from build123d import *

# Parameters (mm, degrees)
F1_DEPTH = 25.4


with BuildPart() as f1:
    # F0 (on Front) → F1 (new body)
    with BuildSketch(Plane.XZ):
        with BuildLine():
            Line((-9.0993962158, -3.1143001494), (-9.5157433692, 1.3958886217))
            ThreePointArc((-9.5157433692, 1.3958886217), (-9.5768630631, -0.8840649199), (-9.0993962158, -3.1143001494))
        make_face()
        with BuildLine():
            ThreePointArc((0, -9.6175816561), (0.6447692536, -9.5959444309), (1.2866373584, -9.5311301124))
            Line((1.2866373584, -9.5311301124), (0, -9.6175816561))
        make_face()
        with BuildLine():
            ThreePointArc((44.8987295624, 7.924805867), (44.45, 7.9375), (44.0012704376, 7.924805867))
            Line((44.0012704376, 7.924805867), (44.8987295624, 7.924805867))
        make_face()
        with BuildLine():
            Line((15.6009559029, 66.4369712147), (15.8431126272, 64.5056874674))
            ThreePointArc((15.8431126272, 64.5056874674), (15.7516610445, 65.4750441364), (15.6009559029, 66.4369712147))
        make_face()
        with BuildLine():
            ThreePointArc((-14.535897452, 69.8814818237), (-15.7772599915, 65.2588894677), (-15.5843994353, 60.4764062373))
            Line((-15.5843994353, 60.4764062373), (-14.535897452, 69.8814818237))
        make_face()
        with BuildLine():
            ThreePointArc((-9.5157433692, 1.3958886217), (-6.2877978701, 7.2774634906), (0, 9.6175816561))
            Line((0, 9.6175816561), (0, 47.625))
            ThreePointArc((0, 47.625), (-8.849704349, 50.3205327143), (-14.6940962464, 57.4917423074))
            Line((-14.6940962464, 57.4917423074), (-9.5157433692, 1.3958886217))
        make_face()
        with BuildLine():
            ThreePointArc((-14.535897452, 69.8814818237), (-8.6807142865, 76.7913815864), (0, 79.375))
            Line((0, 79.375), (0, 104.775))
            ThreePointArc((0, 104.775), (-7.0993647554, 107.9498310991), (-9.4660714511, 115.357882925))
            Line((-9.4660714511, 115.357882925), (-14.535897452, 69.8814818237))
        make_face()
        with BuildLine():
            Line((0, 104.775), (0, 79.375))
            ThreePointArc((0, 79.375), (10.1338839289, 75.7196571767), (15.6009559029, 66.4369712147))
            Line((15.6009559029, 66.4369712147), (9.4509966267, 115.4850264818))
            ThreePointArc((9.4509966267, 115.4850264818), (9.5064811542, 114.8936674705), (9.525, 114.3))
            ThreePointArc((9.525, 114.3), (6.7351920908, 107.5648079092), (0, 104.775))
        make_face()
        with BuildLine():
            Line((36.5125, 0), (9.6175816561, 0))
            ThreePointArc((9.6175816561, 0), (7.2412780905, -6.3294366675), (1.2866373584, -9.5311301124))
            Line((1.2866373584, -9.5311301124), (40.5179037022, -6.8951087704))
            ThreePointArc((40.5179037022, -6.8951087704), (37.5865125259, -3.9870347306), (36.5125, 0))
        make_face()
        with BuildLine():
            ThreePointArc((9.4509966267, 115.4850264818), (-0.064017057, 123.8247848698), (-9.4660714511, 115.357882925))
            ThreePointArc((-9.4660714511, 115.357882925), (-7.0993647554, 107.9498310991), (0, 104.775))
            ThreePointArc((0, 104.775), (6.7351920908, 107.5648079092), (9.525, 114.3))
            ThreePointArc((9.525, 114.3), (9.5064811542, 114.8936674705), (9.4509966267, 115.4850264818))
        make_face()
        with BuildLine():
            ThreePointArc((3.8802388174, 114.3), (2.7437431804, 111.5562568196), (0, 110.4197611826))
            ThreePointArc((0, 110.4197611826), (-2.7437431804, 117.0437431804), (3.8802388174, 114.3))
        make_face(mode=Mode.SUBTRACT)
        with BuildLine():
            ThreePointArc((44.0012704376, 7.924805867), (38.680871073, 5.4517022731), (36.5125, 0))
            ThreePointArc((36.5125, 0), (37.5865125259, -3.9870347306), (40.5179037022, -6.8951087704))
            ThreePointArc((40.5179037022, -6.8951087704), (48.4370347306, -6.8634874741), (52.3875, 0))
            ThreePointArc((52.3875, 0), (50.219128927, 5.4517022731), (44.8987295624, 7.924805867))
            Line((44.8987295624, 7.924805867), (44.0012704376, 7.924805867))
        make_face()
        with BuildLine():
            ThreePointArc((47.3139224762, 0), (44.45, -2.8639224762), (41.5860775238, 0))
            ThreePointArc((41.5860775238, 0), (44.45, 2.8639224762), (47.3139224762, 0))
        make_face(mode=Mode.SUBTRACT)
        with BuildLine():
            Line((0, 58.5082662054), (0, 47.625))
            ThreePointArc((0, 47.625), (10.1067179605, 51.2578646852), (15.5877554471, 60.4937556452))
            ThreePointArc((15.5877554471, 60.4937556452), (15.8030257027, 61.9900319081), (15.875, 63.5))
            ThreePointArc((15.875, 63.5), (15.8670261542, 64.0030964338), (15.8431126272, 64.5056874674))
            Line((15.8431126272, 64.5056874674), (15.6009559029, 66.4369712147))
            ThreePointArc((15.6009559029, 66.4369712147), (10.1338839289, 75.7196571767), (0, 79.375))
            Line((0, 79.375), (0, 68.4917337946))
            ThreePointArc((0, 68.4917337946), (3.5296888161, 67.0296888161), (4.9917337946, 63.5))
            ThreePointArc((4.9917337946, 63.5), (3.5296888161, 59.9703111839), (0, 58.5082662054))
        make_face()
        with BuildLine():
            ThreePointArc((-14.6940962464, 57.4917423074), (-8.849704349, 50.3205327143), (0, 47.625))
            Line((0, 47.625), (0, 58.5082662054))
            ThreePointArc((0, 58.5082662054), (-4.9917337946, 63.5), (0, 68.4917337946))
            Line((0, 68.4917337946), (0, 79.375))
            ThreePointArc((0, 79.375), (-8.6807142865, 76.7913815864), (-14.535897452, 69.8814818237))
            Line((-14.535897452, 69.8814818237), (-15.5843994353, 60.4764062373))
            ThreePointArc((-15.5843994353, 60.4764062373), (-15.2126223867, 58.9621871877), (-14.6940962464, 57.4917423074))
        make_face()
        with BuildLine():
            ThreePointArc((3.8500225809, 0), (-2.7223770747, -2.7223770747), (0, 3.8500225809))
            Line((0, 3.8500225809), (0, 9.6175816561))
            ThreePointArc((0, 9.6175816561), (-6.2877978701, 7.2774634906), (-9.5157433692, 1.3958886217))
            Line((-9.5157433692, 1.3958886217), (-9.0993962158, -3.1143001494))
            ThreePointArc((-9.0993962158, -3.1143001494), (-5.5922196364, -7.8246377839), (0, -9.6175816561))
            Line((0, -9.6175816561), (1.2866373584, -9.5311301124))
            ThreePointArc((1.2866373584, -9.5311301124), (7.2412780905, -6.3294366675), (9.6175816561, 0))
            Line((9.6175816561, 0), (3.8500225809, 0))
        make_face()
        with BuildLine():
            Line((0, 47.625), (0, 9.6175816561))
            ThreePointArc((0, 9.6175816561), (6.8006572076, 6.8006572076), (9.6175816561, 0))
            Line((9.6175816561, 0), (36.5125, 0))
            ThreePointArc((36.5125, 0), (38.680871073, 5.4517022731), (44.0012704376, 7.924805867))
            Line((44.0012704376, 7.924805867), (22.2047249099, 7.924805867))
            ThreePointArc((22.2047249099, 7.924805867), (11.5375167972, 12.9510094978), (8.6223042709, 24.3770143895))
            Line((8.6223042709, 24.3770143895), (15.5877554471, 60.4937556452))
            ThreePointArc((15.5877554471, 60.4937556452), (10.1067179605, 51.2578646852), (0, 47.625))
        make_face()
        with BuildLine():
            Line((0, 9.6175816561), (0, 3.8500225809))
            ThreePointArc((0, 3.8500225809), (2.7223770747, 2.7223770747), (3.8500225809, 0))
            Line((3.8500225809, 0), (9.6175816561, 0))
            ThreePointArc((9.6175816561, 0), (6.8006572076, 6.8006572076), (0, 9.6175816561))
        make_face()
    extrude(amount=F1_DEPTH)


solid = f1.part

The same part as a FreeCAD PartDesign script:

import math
import FreeCAD as App
import Part
import Sketcher
Q = App.Units.Quantity

doc = App.newDocument("Part")
body = doc.addObject("PartDesign::Body", "Body")

# Sketch on XZ plane
sketch1 = body.newObject("Sketcher::SketchObject", "Sketch")
sketch1.AttachmentSupport = (doc.getObject("XZ_Plane"), [""])
sketch1.MapMode = "FlatFace"
sketch1.addGeometry([
    Part.ArcOfCircle(Part.Circle(App.Vector(0, 0, 0), App.Vector(0, 0, 1), 9.617582), math.radians(171.654657), math.radians(198.89369)),  # 0
    Part.ArcOfCircle(Part.Circle(App.Vector(0, 0, 0), App.Vector(0, 0, 1), 9.617582), math.radians(-161.10631), math.radians(-90)),  # 1
    Part.ArcOfCircle(Part.Circle(App.Vector(0, 0, 0), App.Vector(0, 0, 1), 9.617582), math.radians(-90), math.radians(-82.311937)),  # 2
    Part.LineSegment(App.Vector(1.286637, -9.53113, 0), App.Vector(40.517904, -6.895109, 0)),  # 3
    Part.ArcOfCircle(Part.Circle(App.Vector(44.45, 0, 0), App.Vector(0, 0, 1), 7.9375), math.radians(-119.694957), math.radians(0)),  # 4
    Part.ArcOfCircle(Part.Circle(App.Vector(44.45, 0, 0), App.Vector(0, 0, 1), 7.9375), math.radians(0), math.radians(86.759178)),  # 5
    Part.ArcOfCircle(Part.Circle(App.Vector(44.45, 0, 0), App.Vector(0, 0, 1), 7.9375), math.radians(86.759178), math.radians(93.240822)),  # 6
    Part.LineSegment(App.Vector(44.00127, 7.924806, 0), App.Vector(22.204725, 7.924806, 0)),  # 7
    Part.ArcOfCircle(Part.Circle(App.Vector(22.204725, 21.757518, 0), App.Vector(0, 0, 1), 13.832712), math.radians(169.083996), math.radians(270)),  # 8
    Part.LineSegment(App.Vector(8.622304, 24.377014, 0), App.Vector(15.587755, 60.493756, 0)),  # 9
    Part.ArcOfCircle(Part.Circle(App.Vector(0, 63.5, 0), App.Vector(0, 0, 1), 15.875), math.radians(-10.916004), math.radians(0)),  # 10
    Part.ArcOfCircle(Part.Circle(App.Vector(0, 63.5, 0), App.Vector(0, 0, 1), 15.875), math.radians(0), math.radians(3.632142)),  # 11
    Part.ArcOfCircle(Part.Circle(App.Vector(0, 63.5, 0), App.Vector(0, 0, 1), 15.875), math.radians(3.632142), math.radians(10.661486)),  # 12
    Part.LineSegment(App.Vector(15.600956, 66.436971, 0), App.Vector(9.450997, 115.485026, 0)),  # 13
    Part.ArcOfCircle(Part.Circle(App.Vector(0, 114.3, 0), App.Vector(0, 0, 1), 9.525), math.radians(7.146814), math.radians(173.623356)),  # 14
    Part.LineSegment(App.Vector(-9.466071, 115.357883, 0), App.Vector(-14.535897, 69.881482, 0)),  # 15
    Part.ArcOfCircle(Part.Circle(App.Vector(0, 63.5, 0), App.Vector(0, 0, 1), 15.875), math.radians(156.297789), math.radians(190.979782)),  # 16
    Part.ArcOfCircle(Part.Circle(App.Vector(0, 63.5, 0), App.Vector(0, 0, 1), 15.875), math.radians(-169.020218), math.radians(-157.760876)),  # 17
    Part.LineSegment(App.Vector(-14.694096, 57.491742, 0), App.Vector(-9.515743, 1.395889, 0)),  # 18
    Part.ArcOfCircle(Part.Circle(App.Vector(0, 0, 0), App.Vector(0, 0, 1), 3.850023), math.radians(90), math.radians(360)),  # 19
    Part.ArcOfCircle(Part.Circle(App.Vector(0, 0, 0), App.Vector(0, 0, 1), 3.850023), math.radians(0), math.radians(90)),  # 20
    Part.ArcOfCircle(Part.Circle(App.Vector(0, 114.3, 0), App.Vector(0, 0, 1), 3.880239), math.radians(0), math.radians(270)),  # 21
    Part.ArcOfCircle(Part.Circle(App.Vector(0, 114.3, 0), App.Vector(0, 0, 1), 3.880239), math.radians(-90), math.radians(0)),  # 22
    Part.ArcOfCircle(Part.Circle(App.Vector(0, 63.5, 0), App.Vector(0, 0, 1), 4.991734), math.radians(0), math.radians(90)),  # 23
    Part.ArcOfCircle(Part.Circle(App.Vector(0, 63.5, 0), App.Vector(0, 0, 1), 4.991734), math.radians(-90), math.radians(0)),  # 24
    Part.ArcOfCircle(Part.Circle(App.Vector(0, 63.5, 0), App.Vector(0, 0, 1), 4.991734), math.radians(90), math.radians(270)),  # 25
    Part.Circle(App.Vector(44.45, 0, 0), App.Vector(0, 0, 1), 2.863922),  # 26
], False)
sketch1.addConstraint([
    Sketcher.Constraint("Tangent", 0, 2, 1, 1),
    Sketcher.Constraint("Tangent", 1, 2, 2, 1),
    Sketcher.Constraint("Coincident", 2, 2, 3, 1),
    Sketcher.Constraint("Coincident", 3, 2, 4, 1),
    Sketcher.Constraint("Tangent", 4, 2, 5, 1),
    Sketcher.Constraint("Tangent", 5, 2, 6, 1),
    Sketcher.Constraint("Coincident", 6, 2, 7, 1),
    Sketcher.Constraint("Tangent", 7, 2, 8, 2),
    Sketcher.Constraint("Tangent", 8, 1, 9, 1),
    Sketcher.Constraint("Tangent", 9, 2, 10, 1),
    Sketcher.Constraint("Tangent", 10, 2, 11, 1),
    Sketcher.Constraint("Tangent", 11, 2, 12, 1),
    Sketcher.Constraint("Coincident", 12, 2, 13, 1),
    Sketcher.Constraint("Tangent", 13, 2, 14, 1),
    Sketcher.Constraint("Coincident", 14, 2, 15, 1),
    Sketcher.Constraint("Coincident", 15, 2, 16, 1),
    Sketcher.Constraint("Tangent", 16, 2, 17, 1),
    Sketcher.Constraint("Coincident", 17, 2, 18, 1),
    Sketcher.Constraint("Coincident", 18, 2, 0, 1),
    Sketcher.Constraint("Tangent", 19, 1, 20, 2),
    Sketcher.Constraint("Coincident", 20, 1, 19, 2),
    Sketcher.Constraint("Tangent", 21, 1, 22, 2),
    Sketcher.Constraint("Coincident", 22, 1, 21, 2),
    Sketcher.Constraint("Tangent", 23, 1, 24, 2),
    Sketcher.Constraint("Tangent", 24, 1, 25, 2),
    Sketcher.Constraint("Tangent", 25, 1, 23, 2),
    Sketcher.Constraint("Horizontal", 7),
    Sketcher.Constraint("Coincident", 0, 3, -1, 1),
    Sketcher.Constraint("Coincident", 2, 3, -1, 1),
    Sketcher.Constraint("Coincident", 19, 3, -1, 1),
    Sketcher.Constraint("Coincident", 6, 3, 4, 3),
    Sketcher.Constraint("Coincident", 12, 3, 10, 3),
    Sketcher.Constraint("Coincident", 16, 3, 10, 3),
    Sketcher.Constraint("Coincident", 21, 3, 14, 3),
    Sketcher.Constraint("Coincident", 23, 3, 10, 3),
    Sketcher.Constraint("Coincident", 26, 3, 4, 3),
    Sketcher.Constraint("Equal", 12, 16),
    Sketcher.Constraint("Equal", 16, 17),
    Sketcher.Constraint("PointOnObject", 4, 3, -1),
    Sketcher.Constraint("PointOnObject", 10, 3, -2),
    Sketcher.Constraint("PointOnObject", 14, 3, -2),
    Sketcher.Constraint("PointOnObject", 1, 2, -2),
    Sketcher.Constraint("PointOnObject", 4, 2, -1),
    Sketcher.Constraint("PointOnObject", 19, 1, -2),
    Sketcher.Constraint("PointOnObject", 20, 1, -1),
    Sketcher.Constraint("PointOnObject", 22, 1, -2),
    Sketcher.Constraint("PointOnObject", 24, 1, -2),
    Sketcher.Constraint("PointOnObject", 25, 1, -2),
    Sketcher.Constraint("Horizontal", 5, 2, 6, 2),
    Sketcher.Constraint("Horizontal", 25, 3, 10, 2),
    Sketcher.Constraint("Horizontal", 22, 3, 21, 1),
    Sketcher.Constraint("Horizontal", 10, 2, 23, 1),
    Sketcher.Constraint("Radius", 4, Q("0.3125 in")),
    Sketcher.Constraint("Radius", 10, Q("0.625 in")),
    Sketcher.Constraint("Radius", 14, Q("0.375 in")),
    Sketcher.Constraint("DistanceY", 12, 3, 14, 3, Q("2 in")),
    Sketcher.Constraint("DistanceY", -1, 1, 10, 3, Q("2.5 in")),
    Sketcher.Constraint("DistanceX", -1, 1, 4, 3, Q("1.75 in")),
    Sketcher.Constraint("Radius", 0, Q("9.617582 mm")),
    Sketcher.Constraint("Radius", 8, Q("13.832712 mm")),
    Sketcher.Constraint("Radius", 21, Q("3.880239 mm")),
    Sketcher.Constraint("Diameter", 26, Q("5.727845 mm")),
    Sketcher.Constraint("Radius", 19, Q("3.850023 mm")),
    Sketcher.Constraint("Radius", 23, Q("4.991734 mm")),
    Sketcher.Constraint("DistanceY", 0, 2, -1, 1, Q("3.1143 mm")),
    Sketcher.Constraint("DistanceX", 16, 2, -1, 1, Q("15.584399 mm")),
    Sketcher.Constraint("DistanceX", 9, 2, 12, 2, Q("0.0132 mm")),
    Sketcher.Constraint("DistanceX", 16, 2, 15, 2, Q("1.048502 mm")),
    Sketcher.Constraint("DistanceX", 17, 2, 15, 2, Q("0.158199 mm")),
    Sketcher.Constraint("Distance", 18, Q("56.33436 mm")),
    Sketcher.Constraint("DistanceX", 7, 2, 7, 1, Q("21.796546 mm")),
    Sketcher.Constraint("DistanceY", 2, 2, -1, 1, Q("9.53113 mm")),
    Sketcher.Constraint("DistanceY", 3, 2, -1, 1, Q("6.895109 mm")),
    Sketcher.Constraint("DistanceX", -1, 1, 5, 2, Q("44.89873 mm")),
    Sketcher.Constraint("DistanceX", 14, 2, -1, 1, Q("9.466071 mm")),
    Sketcher.Constraint("DistanceY", 9, 2, 11, 2, Q("4.011932 mm")),
])
pad1 = body.newObject("PartDesign::Pad", "Pad")
pad1.Profile = sketch1
pad1.Length = Q("1 in")

doc.recompute()
